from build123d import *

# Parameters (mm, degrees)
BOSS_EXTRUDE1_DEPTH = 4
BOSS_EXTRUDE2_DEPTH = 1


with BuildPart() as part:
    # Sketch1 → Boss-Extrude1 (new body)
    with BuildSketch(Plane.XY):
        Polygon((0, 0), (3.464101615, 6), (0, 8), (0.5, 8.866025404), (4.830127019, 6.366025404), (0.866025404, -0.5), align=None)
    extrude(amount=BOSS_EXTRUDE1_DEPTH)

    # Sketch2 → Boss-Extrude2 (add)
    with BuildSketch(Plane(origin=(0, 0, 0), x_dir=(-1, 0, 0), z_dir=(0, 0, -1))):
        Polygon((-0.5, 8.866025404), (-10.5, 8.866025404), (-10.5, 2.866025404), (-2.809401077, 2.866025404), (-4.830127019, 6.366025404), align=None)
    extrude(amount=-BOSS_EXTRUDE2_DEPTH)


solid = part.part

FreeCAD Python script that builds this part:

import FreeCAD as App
import Part
import Sketcher
from FreeCAD import Vector
Q = App.Units.Quantity

doc = App.newDocument("Part")
body = doc.addObject("PartDesign::Body", "Body")

# Sketch on XY plane
sketch1 = body.newObject("Sketcher::SketchObject", "Sketch")
sketch1.AttachmentSupport = (doc.getObject("XY_Plane"), [""])
sketch1.MapMode = "FlatFace"
sketch1.addGeometry(Part.LineSegment(Vector(3.5, 6, 0), Vector(0, 0, 0)), False)
sketch1.addGeometry(Part.LineSegment(Vector(0, 0, 0), Vector(0.9, -0.5, 0)), False)
sketch1.addGeometry(Part.LineSegment(Vector(0.9, -0.5, 0), Vector(4.8, 6.4, 0)), False)
sketch1.addGeometry(Part.LineSegment(Vector(4.8, 6.4, 0), Vector(0.5, 8.9, 0)), False)
sketch1.addGeometry(Part.LineSegment(Vector(0.5, 8.9, 0), Vector(0, 8, 0)), False)
sketch1.addGeometry(Part.LineSegment(Vector(0, 8, 0), Vector(3.5, 6, 0)), False)
sketch1.addConstraint(Sketcher.Constraint("Coincident", 0, 2, 1, 1))
sketch1.addConstraint(Sketcher.Constraint("Coincident", 1, 2, 2, 1))
sketch1.addConstraint(Sketcher.Constraint("Coincident", 2, 2, 3, 1))
sketch1.addConstraint(Sketcher.Constraint("Coincident", 3, 2, 4, 1))
sketch1.addConstraint(Sketcher.Constraint("Coincident", 4, 2, 5, 1))
sketch1.addConstraint(Sketcher.Constraint("Coincident", 5, 2, 0, 1))
sketch1.addConstraint(Sketcher.Constraint("Coincident", 0, 2, -1, 1))
sketch1.addConstraint(Sketcher.Constraint("PointOnObject", 4, 2, -2))
sketch1.addConstraint(Sketcher.Constraint("Perpendicular", 0, 1))
sketch1.addConstraint(Sketcher.Constraint("Perpendicular", 1, 2))
sketch1.addConstraint(Sketcher.Constraint("Perpendicular", 2, 3))
sketch1.addConstraint(Sketcher.Constraint("Perpendicular", 3, 4))
sketch1.addConstraint(Sketcher.Constraint("Perpendicular", 4, 5))
sketch1.addConstraint(Sketcher.Constraint("Equal", 1, 4))
sketch1.addConstraint(Sketcher.Constraint("Angle", 0, Q("-120 deg")))
sketch1.addConstraint(Sketcher.Constraint("Distance", 1, Q("1 mm")))
sketch1.addConstraint(Sketcher.Constraint("Distance", 3, Q("5 mm")))
pad1 = body.newObject("PartDesign::Pad", "Pad")
pad1.Profile = sketch1
pad1.Length = 4

# Sketch on XY plane
sketch2 = body.newObject("Sketcher::SketchObject", "Sketch001")
sketch2.AttachmentSupport = (doc.getObject("XY_Plane"), [""])
sketch2.MapMode = "FlatFace"
sketch2.addGeometry(Part.LineSegment(Vector(0.5, 8.9, 0), Vector(10.5, 8.9, 0)), False)
sketch2.addGeometry(Part.LineSegment(Vector(10.5, 8.9, 0), Vector(10.5, 2.9, 0)), False)
sketch2.addGeometry(Part.LineSegment(Vector(10.5, 2.9, 0), Vector(2.8, 2.9, 0)), False)
sketch2.addGeometry(Part.LineSegment(Vector(2.8, 2.9, 0), Vector(4.8, 6.4, 0)), False)
sketch2.addGeometry(Part.LineSegment(Vector(4.8, 6.4, 0), Vector(0.5, 8.9, 0)), False)
sketch2.addConstraint(Sketcher.Constraint("Coincident", 0, 2, 1, 1))
sketch2.addConstraint(Sketcher.Constraint("Coincident", 1, 2, 2, 1))
sketch2.addConstraint(Sketcher.Constraint("Coincident", 2, 2, 3, 1))
sketch2.addConstraint(Sketcher.Constraint("Coincident", 3, 2, 4, 1))
sketch2.addConstraint(Sketcher.Constraint("Coincident", 4, 2, 0, 1))
sketch2.addConstraint(Sketcher.Constraint("Horizontal", 0))
sketch2.addConstraint(Sketcher.Constraint("Vertical", 1))
sketch2.addConstraint(Sketcher.Constraint("Horizontal", 2))
sketch2.addConstraint(Sketcher.Constraint("Perpendicular", 3, 4))
sketch2.addConstraint(Sketcher.Constraint("DistanceX", 0, 1, 0, 2, Q("10 mm")))
sketch2.addConstraint(Sketcher.Constraint("DistanceY", 1, 2, 1, 1, Q("6 mm")))
sketch2.addConstraint(Sketcher.Constraint("Angle", 3, Q("60 deg")))
sketch2.addConstraint(Sketcher.Constraint("Distance", 4, Q("5 mm")))
sketch2.addConstraint(Sketcher.Constraint("DistanceX", -1, 1, 0, 2, Q("10.5 mm")))
sketch2.addConstraint(Sketcher.Constraint("DistanceY", -1, 1, 0, 2, Q("8.866025 mm")))
pad2 = body.newObject("PartDesign::Pad", "Pad001")
pad2.Profile = sketch2
pad2.Length = 1

doc.recompute()
